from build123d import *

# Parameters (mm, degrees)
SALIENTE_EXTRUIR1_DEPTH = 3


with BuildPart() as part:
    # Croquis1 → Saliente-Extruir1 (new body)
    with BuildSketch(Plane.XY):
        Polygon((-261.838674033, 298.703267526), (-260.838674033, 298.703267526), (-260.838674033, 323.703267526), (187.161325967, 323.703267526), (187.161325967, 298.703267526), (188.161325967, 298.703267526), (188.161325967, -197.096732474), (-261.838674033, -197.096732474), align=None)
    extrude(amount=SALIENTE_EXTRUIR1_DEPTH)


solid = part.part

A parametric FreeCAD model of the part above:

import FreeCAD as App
import Part
import Sketcher

V = App.Vector
Q = App.Units.Quantity


def add_polygon(sketch, points):
    """Adds a closed chain of lines whose ends are joined by coincident constraints."""
    first, n = sketch.GeometryCount, len(points)
    for a, b in zip(points, points[1:] + points[:1]):
        sketch.addGeometry(Part.LineSegment(App.Vector(*a, 0), App.Vector(*b, 0)), False)
    for i in range(n):
        sketch.addConstraint(Sketcher.Constraint("Coincident", first + i, 2, first + (i + 1) % n, 1))

doc = App.newDocument("Part")
body = doc.addObject("PartDesign::Body", "Body")

# Sketch on XY plane
sketch1 = doc.addObject("Sketcher::SketchObject", "Sketch")
body.addObject(sketch1)
sketch1.AttachmentSupport = (doc.XY_Plane, [""])
sketch1.MapMode = "FlatFace"
add_polygon(sketch1, [(-260.838674, 298.703268), (-261.838674, 298.703268), (-261.838674, -197.096732), (188.161326, -197.096732), (188.161326, 298.703268), (187.161326, 298.703268), (187.161326, 323.703268), (-260.838674, 323.703268)])  # lines 0-7
sketch1.addConstraint([
    Sketcher.Constraint("Horizontal", 0),
    Sketcher.Constraint("Vertical", 1),
    Sketcher.Constraint("Horizontal", 2),
    Sketcher.Constraint("Vertical", 3),
    Sketcher.Constraint("Horizontal", 4),
    Sketcher.Constraint("Vertical", 5),
    Sketcher.Constraint("Horizontal", 6),
    Sketcher.Constraint("Vertical", 7),
    Sketcher.Constraint("Horizontal", 0, 2, 3, 2),
    Sketcher.Constraint("Equal", 0, 4),
    Sketcher.Constraint("DistanceX", 0, 2, 0, 1, Q("1 mm")),
    Sketcher.Constraint("DistanceX", 2, 1, 2, 2, Q("450 mm")),
    Sketcher.Constraint("DistanceY", 5, 1, 5, 2, Q("25 mm")),
    Sketcher.Constraint("DistanceY", 1, 2, 1, 1, Q("495.8 mm")),
    Sketcher.Constraint("DistanceX", 0, 2, -1, 1, Q("261.838674 mm")),
    Sketcher.Constraint("DistanceY", -1, 1, 0, 2, Q("298.703268 mm")),
])
pad1 = doc.addObject("PartDesign::Pad", "Pad")
body.addObject(pad1)
pad1.Profile = sketch1
pad1.Length = 3

doc.recompute()
